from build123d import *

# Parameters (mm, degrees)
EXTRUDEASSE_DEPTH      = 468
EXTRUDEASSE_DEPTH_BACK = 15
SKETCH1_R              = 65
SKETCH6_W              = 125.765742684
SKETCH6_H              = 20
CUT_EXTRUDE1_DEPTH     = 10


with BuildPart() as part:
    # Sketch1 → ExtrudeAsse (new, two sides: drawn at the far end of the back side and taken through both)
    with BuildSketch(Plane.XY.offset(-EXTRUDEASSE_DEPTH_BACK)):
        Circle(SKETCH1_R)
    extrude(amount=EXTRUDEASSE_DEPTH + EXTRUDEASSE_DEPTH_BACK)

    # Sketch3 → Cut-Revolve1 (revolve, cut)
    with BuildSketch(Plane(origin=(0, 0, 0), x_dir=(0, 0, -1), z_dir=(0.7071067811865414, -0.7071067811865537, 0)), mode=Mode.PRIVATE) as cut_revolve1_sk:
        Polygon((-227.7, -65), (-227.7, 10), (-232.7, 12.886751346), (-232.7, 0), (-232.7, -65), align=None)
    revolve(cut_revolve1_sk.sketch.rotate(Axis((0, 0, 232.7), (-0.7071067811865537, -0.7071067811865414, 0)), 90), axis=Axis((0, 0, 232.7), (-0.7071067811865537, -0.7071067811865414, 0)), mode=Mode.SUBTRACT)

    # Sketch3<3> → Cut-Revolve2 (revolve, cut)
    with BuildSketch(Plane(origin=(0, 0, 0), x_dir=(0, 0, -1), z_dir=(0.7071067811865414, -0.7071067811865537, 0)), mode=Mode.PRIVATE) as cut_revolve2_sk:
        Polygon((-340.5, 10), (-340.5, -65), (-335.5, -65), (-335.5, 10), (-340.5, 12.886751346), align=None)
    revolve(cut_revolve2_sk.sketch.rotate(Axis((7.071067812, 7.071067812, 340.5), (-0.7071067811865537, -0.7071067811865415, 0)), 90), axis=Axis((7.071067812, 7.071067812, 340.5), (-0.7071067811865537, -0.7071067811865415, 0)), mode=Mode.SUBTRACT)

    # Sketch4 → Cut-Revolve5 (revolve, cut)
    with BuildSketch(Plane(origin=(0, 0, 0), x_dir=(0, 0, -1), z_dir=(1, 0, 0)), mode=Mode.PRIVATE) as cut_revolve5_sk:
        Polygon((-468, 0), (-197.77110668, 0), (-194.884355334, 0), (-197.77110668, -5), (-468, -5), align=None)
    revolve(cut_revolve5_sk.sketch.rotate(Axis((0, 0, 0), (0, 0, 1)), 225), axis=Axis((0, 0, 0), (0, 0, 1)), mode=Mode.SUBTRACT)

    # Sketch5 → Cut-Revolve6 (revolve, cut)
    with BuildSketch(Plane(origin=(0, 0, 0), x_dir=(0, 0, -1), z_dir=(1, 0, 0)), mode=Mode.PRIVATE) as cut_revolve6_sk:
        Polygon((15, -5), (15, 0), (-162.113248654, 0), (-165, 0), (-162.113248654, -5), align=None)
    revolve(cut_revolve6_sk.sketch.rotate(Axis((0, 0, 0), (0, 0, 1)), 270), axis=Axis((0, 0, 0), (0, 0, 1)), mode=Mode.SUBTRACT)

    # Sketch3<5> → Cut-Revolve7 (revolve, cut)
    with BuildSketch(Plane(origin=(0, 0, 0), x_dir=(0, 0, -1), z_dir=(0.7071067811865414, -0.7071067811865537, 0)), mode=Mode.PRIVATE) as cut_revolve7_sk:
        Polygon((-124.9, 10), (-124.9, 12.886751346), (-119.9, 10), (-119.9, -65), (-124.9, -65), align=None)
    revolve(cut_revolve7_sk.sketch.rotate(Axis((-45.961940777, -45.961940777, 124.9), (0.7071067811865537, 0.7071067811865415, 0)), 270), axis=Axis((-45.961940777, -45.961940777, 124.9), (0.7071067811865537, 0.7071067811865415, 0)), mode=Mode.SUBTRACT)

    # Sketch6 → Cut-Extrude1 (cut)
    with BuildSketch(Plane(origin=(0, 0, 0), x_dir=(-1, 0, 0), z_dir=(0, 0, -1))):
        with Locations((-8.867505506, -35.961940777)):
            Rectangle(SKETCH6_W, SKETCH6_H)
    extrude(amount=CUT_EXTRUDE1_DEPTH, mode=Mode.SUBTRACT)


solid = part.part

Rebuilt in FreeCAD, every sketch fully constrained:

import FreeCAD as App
import Part
import Sketcher
Q = App.Units.Quantity

doc = App.newDocument("Part")
body = doc.addObject("PartDesign::Body", "Body")

# Sketch on XY plane
sketch1 = body.newObject("Sketcher::SketchObject", "Sketch")
sketch1.AttachmentSupport = (doc.getObject("XY_Plane"), [""])
sketch1.MapMode = "FlatFace"
sketch1.addGeometry(Part.Circle(App.Vector(0, 0, 0), App.Vector(0, 0, 1), 65), False)
sketch1.addConstraint([
    Sketcher.Constraint("Coincident", 0, 3, -1, 1),
    Sketcher.Constraint("Diameter", 0, Q("130 mm")),
])
pad1 = body.newObject("PartDesign::Pad", "Pad")
pad1.Profile = sketch1
pad1.Type = "TwoLengths"
pad1.Length = 468
pad1.Length2 = 15

# Sketch on an angled plane
sketch2 = body.newObject("Sketcher::SketchObject", "Sketch001")
sketch2.Placement = App.Placement(App.Vector(0, 0, 0), App.Rotation(App.Vector(0, 0, -1), App.Vector(0.707106781, 0.707106781, 0), App.Vector(0.707106781, -0.707106781, 0), "ZXY"))
sketch2.addGeometry([
    Part.LineSegment(App.Vector(-228, -65, 0), App.Vector(-228, 10, 0)),
    Part.LineSegment(App.Vector(-228, 10, 0), App.Vector(-233, 13, 0)),
    Part.LineSegment(App.Vector(-233, 13, 0), App.Vector(-233, -65, 0)),
    Part.LineSegment(App.Vector(-233, -65, 0), App.Vector(-228, -65, 0)),
], False)
sketch2.addGeometry(Part.LineSegment(App.Vector(-233, 13, 0), App.Vector(-233, -65, 0)), True)  # axis
sketch2.addConstraint([
    Sketcher.Constraint("Coincident", 0, 2, 1, 1),
    Sketcher.Constraint("Coincident", 1, 2, 2, 1),
    Sketcher.Constraint("Coincident", 2, 2, 3, 1),
    Sketcher.Constraint("Coincident", 3, 2, 0, 1),
    Sketcher.Constraint("Vertical", 0),
    Sketcher.Constraint("Vertical", 2),
    Sketcher.Constraint("Horizontal", 3),
    Sketcher.Constraint("Vertical", 4),
    Sketcher.Constraint("Coincident", 4, 1, 1, 2),
    Sketcher.Constraint("Horizontal", 3, 2, 4, 2),
    Sketcher.Constraint("DistanceX", 3, 1, 3, 2, Q("5 mm")),
    Sketcher.Constraint("DistanceY", 0, 1, 0, 2, Q("75 mm")),
    Sketcher.Constraint("Angle", 1, Q("150 deg")),
    Sketcher.Constraint("DistanceY", -1, 1, 0, 2, Q("10 mm")),
    Sketcher.Constraint("DistanceX", 0, 2, -1, 1, Q("227.7 mm")),
])
groove = body.newObject("PartDesign::Groove", "Groove")
groove.Profile = sketch2
groove.ReferenceAxis = (sketch2, ["Axis0"])
groove.Angle = 360

# Sketch on an angled plane
sketch3 = body.newObject("Sketcher::SketchObject", "Sketch002")
sketch3.Placement = App.Placement(App.Vector(0, 0, 0), App.Rotation(App.Vector(0, 0, -1), App.Vector(0.707106781, 0.707106781, 0), App.Vector(0.707106781, -0.707106781, 0), "ZXY"))
sketch3.addGeometry([
    Part.LineSegment(App.Vector(-340, -65, 0), App.Vector(-336, -65, 0)),
    Part.LineSegment(App.Vector(-336, -65, 0), App.Vector(-336, 10, 0)),
    Part.LineSegment(App.Vector(-336, 10, 0), App.Vector(-340, 13, 0)),
    Part.LineSegment(App.Vector(-340, 13, 0), App.Vector(-340, -65, 0)),
], False)
sketch3.addGeometry(Part.LineSegment(App.Vector(-340, 13, 0), App.Vector(-340, -65, 0)), True)  # axis
sketch3.addConstraint([
    Sketcher.Constraint("Coincident", 0, 2, 1, 1),
    Sketcher.Constraint("Coincident", 1, 2, 2, 1),
    Sketcher.Constraint("Coincident", 2, 2, 3, 1),
    Sketcher.Constraint("Coincident", 3, 2, 0, 1),
    Sketcher.Constraint("Horizontal", 0),
    Sketcher.Constraint("Vertical", 1),
    Sketcher.Constraint("Vertical", 3),
    Sketcher.Constraint("Vertical", 4),
    Sketcher.Constraint("Coincident", 4, 1, 2, 2),
    Sketcher.Constraint("Horizontal", 0, 2, 4, 2),
    Sketcher.Constraint("DistanceX", 0, 1, 0, 2, Q("5 mm")),
    Sketcher.Constraint("DistanceY", 1, 1, 1, 2, Q("75 mm")),
    Sketcher.Constraint("Angle", 2, Q("150 deg")),
    Sketcher.Constraint("DistanceY", 0, 2, -1, 1, Q("65 mm")),
    Sketcher.Constraint("DistanceX", 0, 2, -1, 1, Q("335.5 mm")),
])
groove2 = body.newObject("PartDesign::Groove", "Groove001")
groove2.Profile = sketch3
groove2.ReferenceAxis = (sketch3, ["Axis0"])
groove2.Angle = 360

# Sketch on YZ plane
sketch4 = body.newObject("Sketcher::SketchObject", "Sketch003")
sketch4.AttachmentSupport = (doc.getObject("YZ_Plane"), [""])
sketch4.MapMode = "FlatFace"
sketch4.addGeometry([
    Part.LineSegment(App.Vector(0, 195, 0), App.Vector(0, 468, 0)),
    Part.LineSegment(App.Vector(0, 468, 0), App.Vector(-5, 468, 0)),
    Part.LineSegment(App.Vector(-5, 468, 0), App.Vector(-5, 198, 0)),
    Part.LineSegment(App.Vector(-5, 198, 0), App.Vector(0, 195, 0)),
], False)
sketch4.addConstraint([
    Sketcher.Constraint("Coincident", 0, 2, 1, 1),
    Sketcher.Constraint("Coincident", 1, 2, 2, 1),
    Sketcher.Constraint("Coincident", 2, 2, 3, 1),
    Sketcher.Constraint("Coincident", 3, 2, 0, 1),
    Sketcher.Constraint("Vertical", 0),
    Sketcher.Constraint("Horizontal", 1),
    Sketcher.Constraint("Vertical", 2),
    Sketcher.Constraint("PointOnObject", 0, 2, -2),
    Sketcher.Constraint("DistanceX", 1, 2, 1, 1, Q("5 mm")),
    Sketcher.Constraint("Angle", 3, Q("-30 deg")),
    Sketcher.Constraint("DistanceY", -1, 1, 0, 2, Q("468 mm")),
    Sketcher.Constraint("DistanceY", 0, 1, 0, 2, Q("273.115645 mm")),
])
groove3 = body.newObject("PartDesign::Groove", "Groove002")
groove3.Profile = sketch4
groove3.ReferenceAxis = (sketch4, ["V_Axis"])
groove3.Angle = 360

# Sketch on YZ plane
sketch5 = body.newObject("Sketcher::SketchObject", "Sketch004")
sketch5.AttachmentSupport = (doc.getObject("YZ_Plane"), [""])
sketch5.MapMode = "FlatFace"
sketch5.addGeometry([
    Part.LineSegment(App.Vector(-5, -15, 0), App.Vector(0, -15, 0)),
    Part.LineSegment(App.Vector(0, -15, 0), App.Vector(0, 165, 0)),
    Part.LineSegment(App.Vector(0, 165, 0), App.Vector(-5, 162, 0)),
    Part.LineSegment(App.Vector(-5, 162, 0), App.Vector(-5, -15, 0)),
], False)
sketch5.addConstraint([
    Sketcher.Constraint("Coincident", 0, 2, 1, 1),
    Sketcher.Constraint("Coincident", 1, 2, 2, 1),
    Sketcher.Constraint("Coincident", 2, 2, 3, 1),
    Sketcher.Constraint("Coincident", 3, 2, 0, 1),
    Sketcher.Constraint("Horizontal", 0),
    Sketcher.Constraint("Vertical", 1),
    Sketcher.Constraint("Vertical", 3),
    Sketcher.Constraint("PointOnObject", 0, 2, -2),
    Sketcher.Constraint("DistanceX", 0, 1, 0, 2, Q("5 mm")),
    Sketcher.Constraint("DistanceY", 1, 1, 1, 2, Q("180 mm")),
    Sketcher.Constraint("Angle", 2, Q("-150 deg")),
    Sketcher.Constraint("DistanceY", 0, 2, -1, 1, Q("15 mm")),
])
groove4 = body.newObject("PartDesign::Groove", "Groove003")
groove4.Profile = sketch5
groove4.ReferenceAxis = (sketch5, ["V_Axis"])
groove4.Angle = 360

# Sketch on an angled plane
sketch6 = body.newObject("Sketcher::SketchObject", "Sketch005")
sketch6.Placement = App.Placement(App.Vector(0, 0, 0), App.Rotation(App.Vector(0, 0, -1), App.Vector(0.707106781, 0.707106781, 0), App.Vector(0.707106781, -0.707106781, 0), "ZXY"))
sketch6.addGeometry([
    Part.LineSegment(App.Vector(-125, 13, 0), App.Vector(-125, -65, 0)),
    Part.LineSegment(App.Vector(-125, -65, 0), App.Vector(-120, -65, 0)),
    Part.LineSegment(App.Vector(-120, -65, 0), App.Vector(-120, 10, 0)),
    Part.LineSegment(App.Vector(-120, 10, 0), App.Vector(-125, 13, 0)),
], False)
sketch6.addGeometry(Part.LineSegment(App.Vector(-125, -65, 0), App.Vector(-125, 13, 0)), True)  # axis
sketch6.addConstraint([
    Sketcher.Constraint("Coincident", 0, 2, 1, 1),
    Sketcher.Constraint("Coincident", 1, 2, 2, 1),
    Sketcher.Constraint("Coincident", 2, 2, 3, 1),
    Sketcher.Constraint("Coincident", 3, 2, 0, 1),
    Sketcher.Constraint("Vertical", 0),
    Sketcher.Constraint("Horizontal", 1),
    Sketcher.Constraint("Vertical", 2),
    Sketcher.Constraint("Vertical", 4),
    Sketcher.Constraint("Coincident", 4, 1, 0, 2),
    Sketcher.Constraint("Equal", 0, 4),
    Sketcher.Constraint("DistanceX", 1, 1, 1, 2, Q("5 mm")),
    Sketcher.Constraint("DistanceY", 2, 1, 2, 2, Q("75 mm")),
    Sketcher.Constraint("Angle", 3, Q("150 deg")),
    Sketcher.Constraint("DistanceY", 0, 2, -1, 1, Q("65 mm")),
    Sketcher.Constraint("DistanceX", 0, 2, -1, 1, Q("124.9 mm")),
])
groove5 = body.newObject("PartDesign::Groove", "Groove004")
groove5.Profile = sketch6
groove5.ReferenceAxis = (sketch6, ["Axis0"])
groove5.Angle = 360

# Sketch on XY plane
sketch7 = body.newObject("Sketcher::SketchObject", "Sketch006")
sketch7.AttachmentSupport = (doc.getObject("XY_Plane"), [""])
sketch7.MapMode = "FlatFace"
sketch7.addGeometry([
    Part.LineSegment(App.Vector(72, -26, 0), App.Vector(72, -46, 0)),
    Part.LineSegment(App.Vector(72, -46, 0), App.Vector(-54, -46, 0)),
    Part.LineSegment(App.Vector(-54, -46, 0), App.Vector(-54, -26, 0)),
    Part.LineSegment(App.Vector(-54, -26, 0), App.Vector(72, -26, 0)),
], False)
sketch7.addConstraint([
    Sketcher.Constraint("Coincident", 0, 2, 1, 1),
    Sketcher.Constraint("Coincident", 1, 2, 2, 1),
    Sketcher.Constraint("Coincident", 2, 2, 3, 1),
    Sketcher.Constraint("Coincident", 3, 2, 0, 1),
    Sketcher.Constraint("Vertical", 0),
    Sketcher.Constraint("Horizontal", 1),
    Sketcher.Constraint("Vertical", 2),
    Sketcher.Constraint("Horizontal", 3),
    Sketcher.Constraint("DistanceY", 0, 2, 0, 1, Q("20 mm")),
    Sketcher.Constraint("DistanceX", 1, 2, 1, 1, Q("125.765743 mm")),
    Sketcher.Constraint("DistanceY", 0, 2, -1, 1, Q("45.961941 mm")),
    Sketcher.Constraint("DistanceX", -1, 1, 0, 2, Q("71.750377 mm")),
])
pocket1 = body.newObject("PartDesign::Pocket", "Pocket")
pocket1.Profile = sketch7
pocket1.Length = 10

doc.recompute()
